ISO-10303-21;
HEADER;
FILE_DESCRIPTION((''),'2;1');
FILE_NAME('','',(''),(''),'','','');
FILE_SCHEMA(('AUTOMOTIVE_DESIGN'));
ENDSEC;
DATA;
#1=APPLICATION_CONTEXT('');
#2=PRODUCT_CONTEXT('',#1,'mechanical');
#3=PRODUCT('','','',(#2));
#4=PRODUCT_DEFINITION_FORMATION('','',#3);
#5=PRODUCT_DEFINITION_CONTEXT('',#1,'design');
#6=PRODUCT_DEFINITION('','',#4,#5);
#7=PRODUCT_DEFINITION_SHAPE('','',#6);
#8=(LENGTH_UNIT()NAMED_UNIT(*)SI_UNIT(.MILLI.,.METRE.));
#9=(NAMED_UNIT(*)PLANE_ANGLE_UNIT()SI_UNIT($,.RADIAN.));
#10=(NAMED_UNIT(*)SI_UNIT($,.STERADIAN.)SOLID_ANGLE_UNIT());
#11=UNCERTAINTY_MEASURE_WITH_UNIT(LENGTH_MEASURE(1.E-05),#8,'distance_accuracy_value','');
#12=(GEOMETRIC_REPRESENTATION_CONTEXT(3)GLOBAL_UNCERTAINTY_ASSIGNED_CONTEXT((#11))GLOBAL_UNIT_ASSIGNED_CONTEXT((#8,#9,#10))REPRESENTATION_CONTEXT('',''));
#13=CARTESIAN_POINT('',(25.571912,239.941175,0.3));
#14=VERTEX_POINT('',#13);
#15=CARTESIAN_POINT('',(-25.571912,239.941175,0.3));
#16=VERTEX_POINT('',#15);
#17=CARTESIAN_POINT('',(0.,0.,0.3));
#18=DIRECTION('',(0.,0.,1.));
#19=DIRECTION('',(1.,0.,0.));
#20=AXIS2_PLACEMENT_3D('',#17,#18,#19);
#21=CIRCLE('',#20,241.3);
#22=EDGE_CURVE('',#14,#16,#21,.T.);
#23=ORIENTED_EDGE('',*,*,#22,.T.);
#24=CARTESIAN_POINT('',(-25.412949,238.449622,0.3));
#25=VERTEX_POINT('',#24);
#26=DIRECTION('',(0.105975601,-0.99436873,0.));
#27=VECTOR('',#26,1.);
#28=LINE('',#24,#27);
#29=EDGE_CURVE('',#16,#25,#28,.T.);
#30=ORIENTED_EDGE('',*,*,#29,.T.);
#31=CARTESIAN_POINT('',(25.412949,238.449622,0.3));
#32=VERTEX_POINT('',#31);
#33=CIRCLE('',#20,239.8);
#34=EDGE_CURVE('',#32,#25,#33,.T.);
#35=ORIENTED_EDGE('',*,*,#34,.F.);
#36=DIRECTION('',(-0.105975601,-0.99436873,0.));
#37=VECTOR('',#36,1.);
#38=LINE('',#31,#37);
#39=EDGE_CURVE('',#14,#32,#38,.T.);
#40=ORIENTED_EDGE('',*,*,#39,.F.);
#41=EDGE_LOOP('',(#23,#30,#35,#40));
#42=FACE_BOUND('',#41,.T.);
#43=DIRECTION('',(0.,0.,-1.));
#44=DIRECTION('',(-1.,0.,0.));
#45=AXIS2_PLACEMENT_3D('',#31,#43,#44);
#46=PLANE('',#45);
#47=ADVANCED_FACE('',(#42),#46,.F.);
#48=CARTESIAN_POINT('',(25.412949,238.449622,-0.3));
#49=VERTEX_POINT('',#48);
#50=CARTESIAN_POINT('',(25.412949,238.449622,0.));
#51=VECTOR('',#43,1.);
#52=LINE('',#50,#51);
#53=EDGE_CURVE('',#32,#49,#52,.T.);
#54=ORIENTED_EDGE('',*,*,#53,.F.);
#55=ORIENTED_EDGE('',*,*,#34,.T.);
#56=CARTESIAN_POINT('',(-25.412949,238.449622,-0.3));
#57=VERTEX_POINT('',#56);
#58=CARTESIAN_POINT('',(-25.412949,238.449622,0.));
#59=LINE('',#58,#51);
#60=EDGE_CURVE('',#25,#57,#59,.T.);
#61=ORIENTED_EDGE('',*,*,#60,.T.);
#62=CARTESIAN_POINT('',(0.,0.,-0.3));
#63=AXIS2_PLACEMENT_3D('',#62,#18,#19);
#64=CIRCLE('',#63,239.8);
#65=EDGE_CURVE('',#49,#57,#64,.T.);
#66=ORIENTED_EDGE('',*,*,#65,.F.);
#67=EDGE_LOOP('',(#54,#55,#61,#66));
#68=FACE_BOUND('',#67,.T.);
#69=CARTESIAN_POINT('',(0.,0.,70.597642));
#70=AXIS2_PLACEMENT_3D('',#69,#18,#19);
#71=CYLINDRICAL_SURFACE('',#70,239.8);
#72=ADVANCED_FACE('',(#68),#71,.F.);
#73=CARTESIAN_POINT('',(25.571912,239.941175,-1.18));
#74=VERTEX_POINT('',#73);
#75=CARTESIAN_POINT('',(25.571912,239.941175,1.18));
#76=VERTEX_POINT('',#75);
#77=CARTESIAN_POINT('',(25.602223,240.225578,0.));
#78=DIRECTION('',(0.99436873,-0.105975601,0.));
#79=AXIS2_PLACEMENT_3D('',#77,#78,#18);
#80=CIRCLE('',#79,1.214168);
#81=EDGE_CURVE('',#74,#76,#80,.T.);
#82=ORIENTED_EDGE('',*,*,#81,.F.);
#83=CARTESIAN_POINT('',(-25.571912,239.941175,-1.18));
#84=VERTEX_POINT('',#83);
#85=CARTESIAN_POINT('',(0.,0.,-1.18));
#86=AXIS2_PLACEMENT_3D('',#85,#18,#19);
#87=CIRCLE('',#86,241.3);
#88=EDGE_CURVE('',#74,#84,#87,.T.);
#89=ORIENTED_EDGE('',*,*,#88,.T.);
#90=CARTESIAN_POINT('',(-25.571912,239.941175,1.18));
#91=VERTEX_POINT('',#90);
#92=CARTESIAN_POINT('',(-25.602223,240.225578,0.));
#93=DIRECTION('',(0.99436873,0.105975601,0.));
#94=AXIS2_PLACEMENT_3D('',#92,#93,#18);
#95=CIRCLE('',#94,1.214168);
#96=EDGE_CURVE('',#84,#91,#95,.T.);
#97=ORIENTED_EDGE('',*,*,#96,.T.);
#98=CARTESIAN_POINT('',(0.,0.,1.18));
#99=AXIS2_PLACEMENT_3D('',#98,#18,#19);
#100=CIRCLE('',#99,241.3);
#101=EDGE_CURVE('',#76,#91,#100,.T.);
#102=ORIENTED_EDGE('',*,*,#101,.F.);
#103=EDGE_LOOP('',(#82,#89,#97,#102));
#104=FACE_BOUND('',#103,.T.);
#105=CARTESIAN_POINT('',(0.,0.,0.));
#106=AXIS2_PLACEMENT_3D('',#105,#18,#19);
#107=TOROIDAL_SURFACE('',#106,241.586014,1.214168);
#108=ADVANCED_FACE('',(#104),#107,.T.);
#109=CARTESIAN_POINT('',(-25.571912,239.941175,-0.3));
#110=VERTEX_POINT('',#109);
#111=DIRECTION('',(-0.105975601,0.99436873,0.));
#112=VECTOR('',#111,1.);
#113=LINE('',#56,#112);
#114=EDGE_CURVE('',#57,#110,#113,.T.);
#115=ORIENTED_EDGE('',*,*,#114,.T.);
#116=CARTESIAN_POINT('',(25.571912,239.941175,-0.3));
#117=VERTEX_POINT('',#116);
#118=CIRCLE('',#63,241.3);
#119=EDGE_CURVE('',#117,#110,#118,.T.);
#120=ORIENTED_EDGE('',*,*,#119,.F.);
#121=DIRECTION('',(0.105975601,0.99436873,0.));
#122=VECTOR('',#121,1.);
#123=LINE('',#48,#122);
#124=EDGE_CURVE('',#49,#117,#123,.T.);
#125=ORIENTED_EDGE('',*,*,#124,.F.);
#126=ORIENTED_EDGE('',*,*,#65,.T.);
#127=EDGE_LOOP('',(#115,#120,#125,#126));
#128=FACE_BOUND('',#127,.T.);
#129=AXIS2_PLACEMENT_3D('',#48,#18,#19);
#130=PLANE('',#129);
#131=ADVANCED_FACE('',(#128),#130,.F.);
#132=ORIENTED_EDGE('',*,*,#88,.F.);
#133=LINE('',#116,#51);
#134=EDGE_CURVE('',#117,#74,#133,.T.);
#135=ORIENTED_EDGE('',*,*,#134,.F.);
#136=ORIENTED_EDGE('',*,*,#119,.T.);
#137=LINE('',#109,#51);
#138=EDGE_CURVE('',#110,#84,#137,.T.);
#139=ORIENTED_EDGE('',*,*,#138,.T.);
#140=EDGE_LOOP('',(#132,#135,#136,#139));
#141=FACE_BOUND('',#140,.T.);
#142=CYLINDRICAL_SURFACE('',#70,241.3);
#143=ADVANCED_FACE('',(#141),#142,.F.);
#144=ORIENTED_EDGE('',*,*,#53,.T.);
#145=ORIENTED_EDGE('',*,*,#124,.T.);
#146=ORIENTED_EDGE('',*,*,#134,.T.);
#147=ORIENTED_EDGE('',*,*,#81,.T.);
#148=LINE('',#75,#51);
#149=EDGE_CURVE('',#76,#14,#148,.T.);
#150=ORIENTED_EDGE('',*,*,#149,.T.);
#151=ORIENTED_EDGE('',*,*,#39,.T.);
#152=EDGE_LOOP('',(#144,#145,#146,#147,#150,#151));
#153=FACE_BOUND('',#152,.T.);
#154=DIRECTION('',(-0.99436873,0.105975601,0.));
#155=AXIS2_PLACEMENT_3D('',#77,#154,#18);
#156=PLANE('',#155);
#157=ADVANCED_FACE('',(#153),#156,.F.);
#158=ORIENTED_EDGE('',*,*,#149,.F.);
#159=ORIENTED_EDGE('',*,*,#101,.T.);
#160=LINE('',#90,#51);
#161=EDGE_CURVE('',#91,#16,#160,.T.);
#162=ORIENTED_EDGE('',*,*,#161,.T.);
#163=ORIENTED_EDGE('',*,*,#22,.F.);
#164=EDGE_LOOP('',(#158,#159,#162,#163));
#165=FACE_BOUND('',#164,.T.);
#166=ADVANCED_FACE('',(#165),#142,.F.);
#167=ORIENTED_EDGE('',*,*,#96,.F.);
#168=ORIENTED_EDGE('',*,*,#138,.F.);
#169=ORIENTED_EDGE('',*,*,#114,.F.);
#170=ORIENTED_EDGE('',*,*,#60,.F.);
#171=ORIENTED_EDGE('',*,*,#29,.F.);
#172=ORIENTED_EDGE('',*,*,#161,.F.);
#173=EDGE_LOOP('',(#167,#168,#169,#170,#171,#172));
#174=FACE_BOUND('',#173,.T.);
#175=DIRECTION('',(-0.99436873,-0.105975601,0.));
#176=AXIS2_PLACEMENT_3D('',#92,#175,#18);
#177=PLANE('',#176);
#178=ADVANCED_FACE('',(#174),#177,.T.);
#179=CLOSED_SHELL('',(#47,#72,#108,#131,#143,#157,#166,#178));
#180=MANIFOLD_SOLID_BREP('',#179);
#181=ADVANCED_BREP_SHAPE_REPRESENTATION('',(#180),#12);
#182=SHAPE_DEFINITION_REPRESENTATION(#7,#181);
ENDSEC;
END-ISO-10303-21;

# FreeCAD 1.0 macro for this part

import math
import FreeCAD as App
import Part
import Sketcher

V = App.Vector

doc = App.newDocument("Part")
body = doc.addObject("PartDesign::Body", "Body")

# Sketch on YZ plane
sketch1 = doc.addObject("Sketcher::SketchObject", "Sketch")
body.addObject(sketch1)
sketch1.AttachmentSupport = (doc.YZ_Plane, [""])
sketch1.MapMode = "FlatFace"
sketch1.addGeometry([
    Part.LineSegment(V(239.8, -0.3, 0), V(241.3, -0.3, 0)),  # 0
    Part.LineSegment(V(241.3, -0.3, 0), V(241.3, -1.2, 0)),  # 1
    Part.ArcOfCircle(Part.Circle(V(241.6, 0, 0), V(0, 0, 1), 1.2), math.radians(-104), math.radians(104)),  # 2
    Part.LineSegment(V(241.3, 1.2, 0), V(241.3, 0.3, 0)),  # 3
    Part.LineSegment(V(241.3, 0.3, 0), V(239.8, 0.3, 0)),  # 4
    Part.LineSegment(V(239.8, 0.3, 0), V(239.8, -0.3, 0)),  # 5
], False)
sketch1.addConstraint([
    Sketcher.Constraint("Coincident", 0, 2, 1, 1),
    Sketcher.Constraint("Coincident", 1, 2, 2, 1),
    Sketcher.Constraint("Coincident", 2, 2, 3, 1),
    Sketcher.Constraint("Coincident", 3, 2, 4, 1),
    Sketcher.Constraint("Coincident", 4, 2, 5, 1),
    Sketcher.Constraint("Coincident", 5, 2, 0, 1),
    Sketcher.Constraint("Horizontal", 0),
    Sketcher.Constraint("Vertical", 1),
    Sketcher.Constraint("Vertical", 3),
    Sketcher.Constraint("Horizontal", 4),
    Sketcher.Constraint("Vertical", 5),
    Sketcher.Constraint("Symmetric", 1, 2, 2, 2, -1),
    Sketcher.Constraint("Equal", 1, 3),
    Sketcher.Constraint("DistanceX", 0, 1, 0, 2, 1.5),
    Sketcher.Constraint("DistanceY", 5, 2, 5, 1, 0.6),
    Sketcher.Constraint("DistanceY", 1, 2, 1, 1, 0.88),
    Sketcher.Constraint("DistanceX", -1, 1, 0, 2, 241.3),
    Sketcher.Constraint("Radius", 2, 1.214168),
])
revolution = doc.addObject("PartDesign::Revolution", "Revolution")
body.addObject(revolution)
revolution.Profile = sketch1
revolution.ReferenceAxis = (sketch1, ["V_Axis"])
revolution.Angle = 6.083378
revolution.Reversed = True

# Sketch on YZ plane
sketch2 = doc.addObject("Sketcher::SketchObject", "Sketch001")
body.addObject(sketch2)
sketch2.AttachmentSupport = (doc.YZ_Plane, [""])
sketch2.MapMode = "FlatFace"
sketch2.addGeometry([
    Part.LineSegment(V(239.8, -0.3, 0), V(241.3, -0.3, 0)),  # 0
    Part.LineSegment(V(241.3, -0.3, 0), V(241.3, -1.2, 0)),  # 1
    Part.ArcOfCircle(Part.Circle(V(241.6, 0, 0), V(0, 0, 1), 1.2), math.radians(-104), math.radians(104)),  # 2
    Part.LineSegment(V(241.3, 1.2, 0), V(241.3, 0.3, 0)),  # 3
    Part.LineSegment(V(241.3, 0.3, 0), V(239.8, 0.3, 0)),  # 4
    Part.LineSegment(V(239.8, 0.3, 0), V(239.8, -0.3, 0)),  # 5
], False)
sketch2.addConstraint([
    Sketcher.Constraint("Coincident", 0, 2, 1, 1),
    Sketcher.Constraint("Coincident", 1, 2, 2, 1),
    Sketcher.Constraint("Coincident", 2, 2, 3, 1),
    Sketcher.Constraint("Coincident", 3, 2, 4, 1),
    Sketcher.Constraint("Coincident", 4, 2, 5, 1),
    Sketcher.Constraint("Coincident", 5, 2, 0, 1),
    Sketcher.Constraint("Horizontal", 0),
    Sketcher.Constraint("Vertical", 1),
    Sketcher.Constraint("Vertical", 3),
    Sketcher.Constraint("Horizontal", 4),
    Sketcher.Constraint("Vertical", 5),
    Sketcher.Constraint("Symmetric", 1, 2, 2, 2, -1),
    Sketcher.Constraint("Equal", 1, 3),
    Sketcher.Constraint("DistanceX", 0, 1, 0, 2, 1.5),
    Sketcher.Constraint("DistanceY", 5, 2, 5, 1, 0.6),
    Sketcher.Constraint("DistanceY", 1, 2, 1, 1, 0.88),
    Sketcher.Constraint("DistanceX", -1, 1, 0, 2, 241.3),
    Sketcher.Constraint("Radius", 2, 1.214168),
])
revolution2 = doc.addObject("PartDesign::Revolution", "Revolution001")
body.addObject(revolution2)
revolution2.Profile = sketch2
revolution2.ReferenceAxis = (sketch2, ["V_Axis"])
revolution2.Angle = 6.083378

doc.recompute()
